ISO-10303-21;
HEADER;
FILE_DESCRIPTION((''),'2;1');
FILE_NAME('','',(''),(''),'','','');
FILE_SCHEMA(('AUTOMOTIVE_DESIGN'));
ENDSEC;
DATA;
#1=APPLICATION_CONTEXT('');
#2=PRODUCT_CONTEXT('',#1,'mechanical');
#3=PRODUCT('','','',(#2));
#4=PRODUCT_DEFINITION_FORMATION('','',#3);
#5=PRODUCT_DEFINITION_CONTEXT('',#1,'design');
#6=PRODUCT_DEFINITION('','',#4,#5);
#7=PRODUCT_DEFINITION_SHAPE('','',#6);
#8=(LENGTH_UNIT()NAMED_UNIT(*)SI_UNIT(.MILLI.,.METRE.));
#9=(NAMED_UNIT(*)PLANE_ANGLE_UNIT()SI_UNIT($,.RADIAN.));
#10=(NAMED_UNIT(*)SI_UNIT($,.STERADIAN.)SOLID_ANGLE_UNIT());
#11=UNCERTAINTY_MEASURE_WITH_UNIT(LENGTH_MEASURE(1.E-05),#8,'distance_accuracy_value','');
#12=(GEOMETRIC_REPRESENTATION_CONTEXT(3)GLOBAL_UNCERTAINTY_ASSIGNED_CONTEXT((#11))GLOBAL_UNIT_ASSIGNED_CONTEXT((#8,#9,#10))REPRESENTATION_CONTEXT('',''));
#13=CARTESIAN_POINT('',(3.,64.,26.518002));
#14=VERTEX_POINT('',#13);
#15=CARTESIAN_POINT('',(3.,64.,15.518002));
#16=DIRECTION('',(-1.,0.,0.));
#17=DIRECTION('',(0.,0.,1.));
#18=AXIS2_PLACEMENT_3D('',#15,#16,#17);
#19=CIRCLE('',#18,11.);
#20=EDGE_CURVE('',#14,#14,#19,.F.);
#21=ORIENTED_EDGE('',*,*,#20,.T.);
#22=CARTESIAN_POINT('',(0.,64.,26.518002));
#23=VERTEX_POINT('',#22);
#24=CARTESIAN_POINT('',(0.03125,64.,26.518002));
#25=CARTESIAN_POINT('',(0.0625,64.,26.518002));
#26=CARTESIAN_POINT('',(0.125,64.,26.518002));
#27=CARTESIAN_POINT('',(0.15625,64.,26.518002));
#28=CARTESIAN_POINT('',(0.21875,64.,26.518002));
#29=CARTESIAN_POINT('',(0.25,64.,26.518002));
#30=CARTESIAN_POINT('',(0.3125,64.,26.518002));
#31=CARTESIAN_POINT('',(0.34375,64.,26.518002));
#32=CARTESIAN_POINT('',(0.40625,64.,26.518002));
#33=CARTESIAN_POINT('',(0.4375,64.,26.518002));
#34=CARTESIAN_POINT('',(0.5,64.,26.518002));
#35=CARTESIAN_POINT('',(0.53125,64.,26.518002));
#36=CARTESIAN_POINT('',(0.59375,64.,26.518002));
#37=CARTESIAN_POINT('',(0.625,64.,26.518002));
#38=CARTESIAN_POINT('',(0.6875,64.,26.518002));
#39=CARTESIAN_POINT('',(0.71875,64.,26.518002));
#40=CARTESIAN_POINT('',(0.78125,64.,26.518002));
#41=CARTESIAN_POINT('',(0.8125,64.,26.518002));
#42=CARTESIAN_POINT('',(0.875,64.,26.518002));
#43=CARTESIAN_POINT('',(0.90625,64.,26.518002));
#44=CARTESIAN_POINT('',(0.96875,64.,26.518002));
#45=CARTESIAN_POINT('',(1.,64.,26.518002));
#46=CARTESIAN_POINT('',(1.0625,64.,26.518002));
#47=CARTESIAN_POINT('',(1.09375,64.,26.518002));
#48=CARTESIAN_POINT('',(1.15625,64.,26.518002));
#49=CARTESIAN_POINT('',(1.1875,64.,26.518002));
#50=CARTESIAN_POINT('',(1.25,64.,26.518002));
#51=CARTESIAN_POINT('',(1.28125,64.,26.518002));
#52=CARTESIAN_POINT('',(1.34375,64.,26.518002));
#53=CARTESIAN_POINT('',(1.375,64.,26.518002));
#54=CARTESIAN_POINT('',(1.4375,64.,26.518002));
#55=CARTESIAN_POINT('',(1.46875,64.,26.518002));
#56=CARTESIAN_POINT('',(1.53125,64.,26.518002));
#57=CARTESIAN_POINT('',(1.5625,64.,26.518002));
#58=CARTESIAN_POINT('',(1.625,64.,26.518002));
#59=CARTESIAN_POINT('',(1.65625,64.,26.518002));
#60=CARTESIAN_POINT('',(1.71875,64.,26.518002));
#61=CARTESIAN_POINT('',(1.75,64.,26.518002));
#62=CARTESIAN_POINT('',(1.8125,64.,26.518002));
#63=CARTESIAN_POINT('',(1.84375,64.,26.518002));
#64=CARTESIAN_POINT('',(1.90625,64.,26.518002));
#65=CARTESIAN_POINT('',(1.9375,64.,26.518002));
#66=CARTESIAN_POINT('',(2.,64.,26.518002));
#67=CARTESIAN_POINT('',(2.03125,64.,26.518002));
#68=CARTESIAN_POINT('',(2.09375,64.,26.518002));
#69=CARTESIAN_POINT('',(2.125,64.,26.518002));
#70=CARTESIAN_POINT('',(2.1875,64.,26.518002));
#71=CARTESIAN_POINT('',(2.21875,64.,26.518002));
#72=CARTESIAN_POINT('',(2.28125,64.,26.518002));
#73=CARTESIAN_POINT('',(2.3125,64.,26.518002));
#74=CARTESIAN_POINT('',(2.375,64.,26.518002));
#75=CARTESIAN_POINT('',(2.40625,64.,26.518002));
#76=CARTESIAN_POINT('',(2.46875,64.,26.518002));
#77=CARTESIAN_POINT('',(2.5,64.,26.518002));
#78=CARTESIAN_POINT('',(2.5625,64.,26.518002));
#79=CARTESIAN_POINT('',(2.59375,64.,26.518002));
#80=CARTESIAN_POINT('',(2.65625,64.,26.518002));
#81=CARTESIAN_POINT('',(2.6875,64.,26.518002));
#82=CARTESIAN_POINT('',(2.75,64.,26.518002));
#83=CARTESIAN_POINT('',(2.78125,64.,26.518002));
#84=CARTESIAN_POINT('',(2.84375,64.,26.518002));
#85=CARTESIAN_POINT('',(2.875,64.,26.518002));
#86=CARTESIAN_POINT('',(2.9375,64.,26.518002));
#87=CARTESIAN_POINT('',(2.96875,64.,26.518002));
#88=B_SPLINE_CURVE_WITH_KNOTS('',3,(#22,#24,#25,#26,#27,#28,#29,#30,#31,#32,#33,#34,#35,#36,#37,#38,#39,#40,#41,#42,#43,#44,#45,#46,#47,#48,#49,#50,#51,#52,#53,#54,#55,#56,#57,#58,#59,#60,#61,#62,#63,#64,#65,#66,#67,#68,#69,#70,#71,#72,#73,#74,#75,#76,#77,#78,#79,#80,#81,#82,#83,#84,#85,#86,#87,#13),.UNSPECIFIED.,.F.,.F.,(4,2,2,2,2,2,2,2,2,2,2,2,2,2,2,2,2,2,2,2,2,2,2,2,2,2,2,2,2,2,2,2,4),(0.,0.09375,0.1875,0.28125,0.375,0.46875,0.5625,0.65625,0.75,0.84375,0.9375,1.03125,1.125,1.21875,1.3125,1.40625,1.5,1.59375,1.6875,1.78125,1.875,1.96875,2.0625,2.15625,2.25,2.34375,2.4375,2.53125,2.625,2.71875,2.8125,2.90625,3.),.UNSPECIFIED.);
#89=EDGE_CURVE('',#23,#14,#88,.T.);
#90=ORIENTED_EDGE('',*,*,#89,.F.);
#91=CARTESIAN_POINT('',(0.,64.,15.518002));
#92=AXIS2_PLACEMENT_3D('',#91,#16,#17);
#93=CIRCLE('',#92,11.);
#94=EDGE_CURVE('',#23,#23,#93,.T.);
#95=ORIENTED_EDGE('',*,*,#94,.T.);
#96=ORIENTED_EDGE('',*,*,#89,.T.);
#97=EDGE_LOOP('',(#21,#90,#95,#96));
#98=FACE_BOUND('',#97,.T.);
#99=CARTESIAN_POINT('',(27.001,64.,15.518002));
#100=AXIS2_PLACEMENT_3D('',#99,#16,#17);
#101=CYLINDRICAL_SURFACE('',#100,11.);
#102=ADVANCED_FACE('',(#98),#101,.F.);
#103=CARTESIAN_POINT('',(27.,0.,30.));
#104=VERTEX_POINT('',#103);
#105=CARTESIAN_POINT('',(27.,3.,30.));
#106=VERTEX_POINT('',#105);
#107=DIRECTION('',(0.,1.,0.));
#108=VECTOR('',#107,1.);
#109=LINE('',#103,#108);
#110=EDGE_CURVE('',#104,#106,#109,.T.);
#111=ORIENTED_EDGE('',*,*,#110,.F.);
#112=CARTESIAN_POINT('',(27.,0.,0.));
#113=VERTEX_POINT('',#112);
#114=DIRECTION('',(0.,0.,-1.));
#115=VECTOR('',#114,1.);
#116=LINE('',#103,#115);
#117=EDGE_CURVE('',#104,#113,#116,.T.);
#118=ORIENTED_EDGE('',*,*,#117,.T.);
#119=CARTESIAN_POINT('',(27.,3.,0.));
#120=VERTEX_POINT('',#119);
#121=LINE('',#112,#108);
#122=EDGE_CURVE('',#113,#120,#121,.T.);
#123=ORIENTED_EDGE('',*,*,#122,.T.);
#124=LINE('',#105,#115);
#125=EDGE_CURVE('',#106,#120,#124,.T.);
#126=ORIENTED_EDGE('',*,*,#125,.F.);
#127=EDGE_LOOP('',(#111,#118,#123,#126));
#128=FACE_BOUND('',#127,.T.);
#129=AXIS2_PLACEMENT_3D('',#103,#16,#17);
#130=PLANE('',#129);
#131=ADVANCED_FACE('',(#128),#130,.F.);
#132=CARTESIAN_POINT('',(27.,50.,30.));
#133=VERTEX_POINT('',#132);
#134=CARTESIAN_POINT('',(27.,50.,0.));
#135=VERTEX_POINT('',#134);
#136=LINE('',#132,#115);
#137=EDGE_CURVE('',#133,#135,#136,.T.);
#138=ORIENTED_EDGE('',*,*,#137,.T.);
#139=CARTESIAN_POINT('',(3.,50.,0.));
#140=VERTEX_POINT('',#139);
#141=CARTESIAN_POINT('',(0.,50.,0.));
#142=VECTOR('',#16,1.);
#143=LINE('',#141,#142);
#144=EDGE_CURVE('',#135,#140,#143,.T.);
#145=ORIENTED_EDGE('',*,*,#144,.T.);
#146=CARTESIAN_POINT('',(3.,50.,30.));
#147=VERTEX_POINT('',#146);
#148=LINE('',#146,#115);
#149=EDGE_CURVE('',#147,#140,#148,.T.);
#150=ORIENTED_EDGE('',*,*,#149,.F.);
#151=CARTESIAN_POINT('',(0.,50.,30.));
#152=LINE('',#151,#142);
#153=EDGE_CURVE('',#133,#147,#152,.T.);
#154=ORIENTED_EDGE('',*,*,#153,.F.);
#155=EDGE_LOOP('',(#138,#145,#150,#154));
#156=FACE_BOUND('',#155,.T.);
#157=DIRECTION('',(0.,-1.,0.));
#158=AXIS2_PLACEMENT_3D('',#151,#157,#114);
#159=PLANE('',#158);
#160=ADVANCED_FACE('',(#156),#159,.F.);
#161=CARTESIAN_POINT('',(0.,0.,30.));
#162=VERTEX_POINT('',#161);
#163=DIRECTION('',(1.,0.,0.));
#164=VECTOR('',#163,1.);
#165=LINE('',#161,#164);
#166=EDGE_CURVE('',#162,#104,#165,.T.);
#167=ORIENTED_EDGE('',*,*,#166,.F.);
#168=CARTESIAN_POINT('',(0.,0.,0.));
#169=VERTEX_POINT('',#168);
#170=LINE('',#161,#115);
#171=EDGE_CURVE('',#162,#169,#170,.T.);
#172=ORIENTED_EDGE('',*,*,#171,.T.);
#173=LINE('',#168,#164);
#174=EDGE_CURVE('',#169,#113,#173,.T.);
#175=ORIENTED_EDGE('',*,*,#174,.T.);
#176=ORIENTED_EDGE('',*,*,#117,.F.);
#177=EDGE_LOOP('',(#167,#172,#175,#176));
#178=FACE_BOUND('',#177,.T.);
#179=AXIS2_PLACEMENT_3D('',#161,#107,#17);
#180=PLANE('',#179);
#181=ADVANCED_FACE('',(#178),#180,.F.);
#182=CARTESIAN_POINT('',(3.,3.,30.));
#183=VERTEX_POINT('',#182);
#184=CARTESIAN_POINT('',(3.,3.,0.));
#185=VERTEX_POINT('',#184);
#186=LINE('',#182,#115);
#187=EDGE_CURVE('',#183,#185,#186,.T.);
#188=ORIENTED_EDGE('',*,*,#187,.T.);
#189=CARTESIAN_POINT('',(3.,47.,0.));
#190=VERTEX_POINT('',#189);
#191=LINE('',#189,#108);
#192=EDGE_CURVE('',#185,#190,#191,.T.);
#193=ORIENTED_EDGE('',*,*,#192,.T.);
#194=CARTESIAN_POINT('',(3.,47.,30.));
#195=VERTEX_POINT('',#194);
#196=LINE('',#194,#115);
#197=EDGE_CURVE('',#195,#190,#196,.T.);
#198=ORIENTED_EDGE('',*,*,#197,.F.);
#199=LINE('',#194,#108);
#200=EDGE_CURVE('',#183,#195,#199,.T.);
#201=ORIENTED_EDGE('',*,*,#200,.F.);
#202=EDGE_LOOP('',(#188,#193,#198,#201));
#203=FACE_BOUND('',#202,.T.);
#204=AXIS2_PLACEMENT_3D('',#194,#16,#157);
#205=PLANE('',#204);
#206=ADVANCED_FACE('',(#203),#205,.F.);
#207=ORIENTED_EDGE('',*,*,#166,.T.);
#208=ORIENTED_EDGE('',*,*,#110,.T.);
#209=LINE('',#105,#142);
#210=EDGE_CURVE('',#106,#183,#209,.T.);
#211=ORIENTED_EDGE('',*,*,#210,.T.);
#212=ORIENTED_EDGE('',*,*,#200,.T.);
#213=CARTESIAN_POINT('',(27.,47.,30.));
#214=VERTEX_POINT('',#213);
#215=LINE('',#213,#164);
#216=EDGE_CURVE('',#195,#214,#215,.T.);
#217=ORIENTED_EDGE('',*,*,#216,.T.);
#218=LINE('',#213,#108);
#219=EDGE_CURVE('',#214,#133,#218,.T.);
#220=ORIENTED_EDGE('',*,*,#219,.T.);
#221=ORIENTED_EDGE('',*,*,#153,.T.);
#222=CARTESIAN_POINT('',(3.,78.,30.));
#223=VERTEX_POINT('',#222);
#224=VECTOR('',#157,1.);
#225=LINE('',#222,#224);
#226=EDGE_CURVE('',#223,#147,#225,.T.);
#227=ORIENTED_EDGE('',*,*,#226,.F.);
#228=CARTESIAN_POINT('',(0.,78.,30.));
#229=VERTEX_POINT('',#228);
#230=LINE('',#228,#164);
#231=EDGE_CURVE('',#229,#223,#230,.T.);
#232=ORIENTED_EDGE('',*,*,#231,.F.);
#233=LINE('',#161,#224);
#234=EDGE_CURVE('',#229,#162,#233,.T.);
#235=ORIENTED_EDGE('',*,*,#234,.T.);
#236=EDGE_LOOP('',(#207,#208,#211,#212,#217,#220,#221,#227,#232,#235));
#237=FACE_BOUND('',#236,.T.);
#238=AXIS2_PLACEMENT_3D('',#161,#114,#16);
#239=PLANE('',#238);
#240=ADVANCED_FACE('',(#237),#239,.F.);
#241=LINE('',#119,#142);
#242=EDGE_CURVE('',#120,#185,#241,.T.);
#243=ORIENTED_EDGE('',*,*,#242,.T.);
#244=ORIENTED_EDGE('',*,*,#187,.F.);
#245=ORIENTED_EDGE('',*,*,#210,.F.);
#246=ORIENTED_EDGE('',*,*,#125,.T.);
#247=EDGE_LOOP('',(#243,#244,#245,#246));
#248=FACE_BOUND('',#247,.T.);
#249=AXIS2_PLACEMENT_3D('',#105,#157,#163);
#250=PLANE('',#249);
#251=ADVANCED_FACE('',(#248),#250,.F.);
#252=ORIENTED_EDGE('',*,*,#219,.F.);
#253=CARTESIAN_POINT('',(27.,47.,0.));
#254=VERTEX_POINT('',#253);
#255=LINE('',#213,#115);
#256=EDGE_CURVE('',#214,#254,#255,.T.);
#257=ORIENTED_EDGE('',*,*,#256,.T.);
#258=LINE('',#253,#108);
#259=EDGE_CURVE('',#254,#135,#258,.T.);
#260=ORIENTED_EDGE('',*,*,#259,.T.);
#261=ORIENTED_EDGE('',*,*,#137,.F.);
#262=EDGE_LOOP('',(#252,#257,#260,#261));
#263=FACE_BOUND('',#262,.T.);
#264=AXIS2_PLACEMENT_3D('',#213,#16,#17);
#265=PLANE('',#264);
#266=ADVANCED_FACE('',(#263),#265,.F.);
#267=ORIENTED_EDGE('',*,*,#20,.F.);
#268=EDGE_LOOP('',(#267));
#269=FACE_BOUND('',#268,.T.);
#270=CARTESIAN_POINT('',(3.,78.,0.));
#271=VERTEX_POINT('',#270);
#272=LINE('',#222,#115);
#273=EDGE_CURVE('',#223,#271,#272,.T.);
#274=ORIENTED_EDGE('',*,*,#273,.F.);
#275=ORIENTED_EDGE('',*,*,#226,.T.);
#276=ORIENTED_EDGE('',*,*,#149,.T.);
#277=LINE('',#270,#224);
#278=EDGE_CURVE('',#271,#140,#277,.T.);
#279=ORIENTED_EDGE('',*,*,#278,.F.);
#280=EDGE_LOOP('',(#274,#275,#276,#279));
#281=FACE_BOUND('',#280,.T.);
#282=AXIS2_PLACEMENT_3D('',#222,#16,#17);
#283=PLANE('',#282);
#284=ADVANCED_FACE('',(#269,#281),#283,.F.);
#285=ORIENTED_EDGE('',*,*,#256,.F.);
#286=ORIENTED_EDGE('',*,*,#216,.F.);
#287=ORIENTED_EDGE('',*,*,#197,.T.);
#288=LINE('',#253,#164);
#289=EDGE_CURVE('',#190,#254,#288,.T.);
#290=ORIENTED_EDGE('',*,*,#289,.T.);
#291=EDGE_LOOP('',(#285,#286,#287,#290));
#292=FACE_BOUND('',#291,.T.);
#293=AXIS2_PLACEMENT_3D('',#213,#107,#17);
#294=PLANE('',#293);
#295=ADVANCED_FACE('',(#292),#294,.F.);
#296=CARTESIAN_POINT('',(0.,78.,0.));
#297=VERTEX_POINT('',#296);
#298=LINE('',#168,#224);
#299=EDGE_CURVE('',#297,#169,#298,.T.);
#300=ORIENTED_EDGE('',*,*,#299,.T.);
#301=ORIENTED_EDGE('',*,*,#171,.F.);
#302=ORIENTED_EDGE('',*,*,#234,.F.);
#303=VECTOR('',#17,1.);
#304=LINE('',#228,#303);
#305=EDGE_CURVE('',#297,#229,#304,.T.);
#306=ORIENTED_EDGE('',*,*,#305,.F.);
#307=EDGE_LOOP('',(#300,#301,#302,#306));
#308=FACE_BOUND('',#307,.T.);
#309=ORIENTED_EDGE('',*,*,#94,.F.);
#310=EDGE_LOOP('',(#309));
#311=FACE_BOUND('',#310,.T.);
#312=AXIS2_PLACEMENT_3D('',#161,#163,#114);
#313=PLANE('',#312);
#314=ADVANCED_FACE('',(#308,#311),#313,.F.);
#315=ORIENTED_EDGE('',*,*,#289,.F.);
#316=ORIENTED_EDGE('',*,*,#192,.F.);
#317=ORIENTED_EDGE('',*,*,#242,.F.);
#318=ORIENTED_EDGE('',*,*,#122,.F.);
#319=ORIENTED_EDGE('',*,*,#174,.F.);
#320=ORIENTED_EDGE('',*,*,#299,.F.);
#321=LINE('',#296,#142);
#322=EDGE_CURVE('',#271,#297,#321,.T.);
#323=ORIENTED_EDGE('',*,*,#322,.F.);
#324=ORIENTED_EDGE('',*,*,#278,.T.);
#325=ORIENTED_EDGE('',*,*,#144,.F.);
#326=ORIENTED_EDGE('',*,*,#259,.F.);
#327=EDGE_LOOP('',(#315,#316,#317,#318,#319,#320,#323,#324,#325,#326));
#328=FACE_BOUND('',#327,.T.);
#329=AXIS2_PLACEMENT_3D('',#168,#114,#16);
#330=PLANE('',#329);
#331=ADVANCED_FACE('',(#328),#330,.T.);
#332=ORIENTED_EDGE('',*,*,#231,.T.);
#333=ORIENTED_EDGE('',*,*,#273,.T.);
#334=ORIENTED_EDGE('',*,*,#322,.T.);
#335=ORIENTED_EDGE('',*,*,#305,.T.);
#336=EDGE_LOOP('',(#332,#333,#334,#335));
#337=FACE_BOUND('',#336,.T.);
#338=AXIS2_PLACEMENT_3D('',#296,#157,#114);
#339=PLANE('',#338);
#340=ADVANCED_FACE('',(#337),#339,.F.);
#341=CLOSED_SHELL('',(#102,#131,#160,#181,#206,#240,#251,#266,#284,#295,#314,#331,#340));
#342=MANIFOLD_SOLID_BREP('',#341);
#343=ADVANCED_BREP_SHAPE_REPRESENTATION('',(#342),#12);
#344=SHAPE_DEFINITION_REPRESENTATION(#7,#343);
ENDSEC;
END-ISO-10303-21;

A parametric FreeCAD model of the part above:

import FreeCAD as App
import Part
import Sketcher
Q = App.Units.Quantity


def add_polygon(sketch, points):
    """Adds a closed chain of lines whose ends are joined by coincident constraints."""
    first, n = sketch.GeometryCount, len(points)
    for a, b in zip(points, points[1:] + points[:1]):
        sketch.addGeometry(Part.LineSegment(App.Vector(*a, 0), App.Vector(*b, 0)), False)
    for i in range(n):
        sketch.addConstraint(Sketcher.Constraint("Coincident", first + i, 2, first + (i + 1) % n, 1))

doc = App.newDocument("Part")
body = doc.addObject("PartDesign::Body", "Body")

# Sketch on XY plane
sketch1 = body.newObject("Sketcher::SketchObject", "Sketch")
sketch1.AttachmentSupport = (doc.getObject("XY_Plane"), [""])
sketch1.MapMode = "FlatFace"
add_polygon(sketch1, [(27, 47), (27, 50), (0, 50), (0, 0), (27, 0), (27, 3), (3, 3), (3, 47)])  # lines 0-7
sketch1.addConstraint([
    Sketcher.Constraint("Vertical", 0),
    Sketcher.Constraint("Horizontal", 1),
    Sketcher.Constraint("Vertical", 2),
    Sketcher.Constraint("Horizontal", 3),
    Sketcher.Constraint("Vertical", 4),
    Sketcher.Constraint("Horizontal", 5),
    Sketcher.Constraint("Vertical", 6),
    Sketcher.Constraint("Horizontal", 7),
    Sketcher.Constraint("Coincident", 2, 2, -1, 1),
    Sketcher.Constraint("Vertical", 0, 2, 3, 2),
    Sketcher.Constraint("Equal", 0, 4),
    Sketcher.Constraint("DistanceX", 1, 2, 1, 1, Q("27 mm")),
    Sketcher.Constraint("DistanceX", 5, 2, 5, 1, Q("24 mm")),
    Sketcher.Constraint("DistanceY", 0, 1, 0, 2, Q("3 mm")),
    Sketcher.Constraint("DistanceY", 2, 2, 2, 1, Q("50 mm")),
])
pad1 = body.newObject("PartDesign::Pad", "Pad")
pad1.Profile = sketch1
pad1.Length = 30

# Sketch on XZ plane
sketch2 = body.newObject("Sketcher::SketchObject", "Sketch001")
sketch2.AttachmentSupport = (doc.getObject("XZ_Plane"), [""])
sketch2.MapMode = "FlatFace"
sketch2.AttachmentOffset = App.Placement(App.Vector(0, 0, -50), App.Rotation())
add_polygon(sketch2, [(0, 0), (0, 30), (3, 30), (3, 0)])  # lines 0-3
sketch2.addConstraint([
    Sketcher.Constraint("Vertical", 0),
    Sketcher.Constraint("Horizontal", 1),
    Sketcher.Constraint("Vertical", 2),
    Sketcher.Constraint("Horizontal", 3),
    Sketcher.Constraint("Coincident", 3, 2, -1, 1),
    Sketcher.Constraint("DistanceX", 1, 1, 1, 2, Q("3 mm")),
    Sketcher.Constraint("DistanceY", 0, 1, 0, 2, Q("30 mm")),
])
pad2 = body.newObject("PartDesign::Pad", "Pad001")
pad2.Profile = sketch2
pad2.Length = 28
pad2.Reversed = True

# Sketch on YZ plane
sketch3 = body.newObject("Sketcher::SketchObject", "Sketch002")
sketch3.AttachmentSupport = (doc.getObject("YZ_Plane"), [""])
sketch3.MapMode = "FlatFace"
sketch3.addGeometry(Part.Circle(App.Vector(64, 16, 0), App.Vector(0, 0, 1), 11), False)
sketch3.addConstraint([
    Sketcher.Constraint("Diameter", 0, Q("22 mm")),
    Sketcher.Constraint("DistanceX", -1, 1, 0, 3, Q("64 mm")),
    Sketcher.Constraint("DistanceY", -1, 1, 0, 3, Q("15.518002 mm")),
])
pocket1 = body.newObject("PartDesign::Pocket", "Pocket")
pocket1.Profile = sketch3
pocket1.Type = "UpToFirst"
pocket1.Reversed = True

doc.recompute()
